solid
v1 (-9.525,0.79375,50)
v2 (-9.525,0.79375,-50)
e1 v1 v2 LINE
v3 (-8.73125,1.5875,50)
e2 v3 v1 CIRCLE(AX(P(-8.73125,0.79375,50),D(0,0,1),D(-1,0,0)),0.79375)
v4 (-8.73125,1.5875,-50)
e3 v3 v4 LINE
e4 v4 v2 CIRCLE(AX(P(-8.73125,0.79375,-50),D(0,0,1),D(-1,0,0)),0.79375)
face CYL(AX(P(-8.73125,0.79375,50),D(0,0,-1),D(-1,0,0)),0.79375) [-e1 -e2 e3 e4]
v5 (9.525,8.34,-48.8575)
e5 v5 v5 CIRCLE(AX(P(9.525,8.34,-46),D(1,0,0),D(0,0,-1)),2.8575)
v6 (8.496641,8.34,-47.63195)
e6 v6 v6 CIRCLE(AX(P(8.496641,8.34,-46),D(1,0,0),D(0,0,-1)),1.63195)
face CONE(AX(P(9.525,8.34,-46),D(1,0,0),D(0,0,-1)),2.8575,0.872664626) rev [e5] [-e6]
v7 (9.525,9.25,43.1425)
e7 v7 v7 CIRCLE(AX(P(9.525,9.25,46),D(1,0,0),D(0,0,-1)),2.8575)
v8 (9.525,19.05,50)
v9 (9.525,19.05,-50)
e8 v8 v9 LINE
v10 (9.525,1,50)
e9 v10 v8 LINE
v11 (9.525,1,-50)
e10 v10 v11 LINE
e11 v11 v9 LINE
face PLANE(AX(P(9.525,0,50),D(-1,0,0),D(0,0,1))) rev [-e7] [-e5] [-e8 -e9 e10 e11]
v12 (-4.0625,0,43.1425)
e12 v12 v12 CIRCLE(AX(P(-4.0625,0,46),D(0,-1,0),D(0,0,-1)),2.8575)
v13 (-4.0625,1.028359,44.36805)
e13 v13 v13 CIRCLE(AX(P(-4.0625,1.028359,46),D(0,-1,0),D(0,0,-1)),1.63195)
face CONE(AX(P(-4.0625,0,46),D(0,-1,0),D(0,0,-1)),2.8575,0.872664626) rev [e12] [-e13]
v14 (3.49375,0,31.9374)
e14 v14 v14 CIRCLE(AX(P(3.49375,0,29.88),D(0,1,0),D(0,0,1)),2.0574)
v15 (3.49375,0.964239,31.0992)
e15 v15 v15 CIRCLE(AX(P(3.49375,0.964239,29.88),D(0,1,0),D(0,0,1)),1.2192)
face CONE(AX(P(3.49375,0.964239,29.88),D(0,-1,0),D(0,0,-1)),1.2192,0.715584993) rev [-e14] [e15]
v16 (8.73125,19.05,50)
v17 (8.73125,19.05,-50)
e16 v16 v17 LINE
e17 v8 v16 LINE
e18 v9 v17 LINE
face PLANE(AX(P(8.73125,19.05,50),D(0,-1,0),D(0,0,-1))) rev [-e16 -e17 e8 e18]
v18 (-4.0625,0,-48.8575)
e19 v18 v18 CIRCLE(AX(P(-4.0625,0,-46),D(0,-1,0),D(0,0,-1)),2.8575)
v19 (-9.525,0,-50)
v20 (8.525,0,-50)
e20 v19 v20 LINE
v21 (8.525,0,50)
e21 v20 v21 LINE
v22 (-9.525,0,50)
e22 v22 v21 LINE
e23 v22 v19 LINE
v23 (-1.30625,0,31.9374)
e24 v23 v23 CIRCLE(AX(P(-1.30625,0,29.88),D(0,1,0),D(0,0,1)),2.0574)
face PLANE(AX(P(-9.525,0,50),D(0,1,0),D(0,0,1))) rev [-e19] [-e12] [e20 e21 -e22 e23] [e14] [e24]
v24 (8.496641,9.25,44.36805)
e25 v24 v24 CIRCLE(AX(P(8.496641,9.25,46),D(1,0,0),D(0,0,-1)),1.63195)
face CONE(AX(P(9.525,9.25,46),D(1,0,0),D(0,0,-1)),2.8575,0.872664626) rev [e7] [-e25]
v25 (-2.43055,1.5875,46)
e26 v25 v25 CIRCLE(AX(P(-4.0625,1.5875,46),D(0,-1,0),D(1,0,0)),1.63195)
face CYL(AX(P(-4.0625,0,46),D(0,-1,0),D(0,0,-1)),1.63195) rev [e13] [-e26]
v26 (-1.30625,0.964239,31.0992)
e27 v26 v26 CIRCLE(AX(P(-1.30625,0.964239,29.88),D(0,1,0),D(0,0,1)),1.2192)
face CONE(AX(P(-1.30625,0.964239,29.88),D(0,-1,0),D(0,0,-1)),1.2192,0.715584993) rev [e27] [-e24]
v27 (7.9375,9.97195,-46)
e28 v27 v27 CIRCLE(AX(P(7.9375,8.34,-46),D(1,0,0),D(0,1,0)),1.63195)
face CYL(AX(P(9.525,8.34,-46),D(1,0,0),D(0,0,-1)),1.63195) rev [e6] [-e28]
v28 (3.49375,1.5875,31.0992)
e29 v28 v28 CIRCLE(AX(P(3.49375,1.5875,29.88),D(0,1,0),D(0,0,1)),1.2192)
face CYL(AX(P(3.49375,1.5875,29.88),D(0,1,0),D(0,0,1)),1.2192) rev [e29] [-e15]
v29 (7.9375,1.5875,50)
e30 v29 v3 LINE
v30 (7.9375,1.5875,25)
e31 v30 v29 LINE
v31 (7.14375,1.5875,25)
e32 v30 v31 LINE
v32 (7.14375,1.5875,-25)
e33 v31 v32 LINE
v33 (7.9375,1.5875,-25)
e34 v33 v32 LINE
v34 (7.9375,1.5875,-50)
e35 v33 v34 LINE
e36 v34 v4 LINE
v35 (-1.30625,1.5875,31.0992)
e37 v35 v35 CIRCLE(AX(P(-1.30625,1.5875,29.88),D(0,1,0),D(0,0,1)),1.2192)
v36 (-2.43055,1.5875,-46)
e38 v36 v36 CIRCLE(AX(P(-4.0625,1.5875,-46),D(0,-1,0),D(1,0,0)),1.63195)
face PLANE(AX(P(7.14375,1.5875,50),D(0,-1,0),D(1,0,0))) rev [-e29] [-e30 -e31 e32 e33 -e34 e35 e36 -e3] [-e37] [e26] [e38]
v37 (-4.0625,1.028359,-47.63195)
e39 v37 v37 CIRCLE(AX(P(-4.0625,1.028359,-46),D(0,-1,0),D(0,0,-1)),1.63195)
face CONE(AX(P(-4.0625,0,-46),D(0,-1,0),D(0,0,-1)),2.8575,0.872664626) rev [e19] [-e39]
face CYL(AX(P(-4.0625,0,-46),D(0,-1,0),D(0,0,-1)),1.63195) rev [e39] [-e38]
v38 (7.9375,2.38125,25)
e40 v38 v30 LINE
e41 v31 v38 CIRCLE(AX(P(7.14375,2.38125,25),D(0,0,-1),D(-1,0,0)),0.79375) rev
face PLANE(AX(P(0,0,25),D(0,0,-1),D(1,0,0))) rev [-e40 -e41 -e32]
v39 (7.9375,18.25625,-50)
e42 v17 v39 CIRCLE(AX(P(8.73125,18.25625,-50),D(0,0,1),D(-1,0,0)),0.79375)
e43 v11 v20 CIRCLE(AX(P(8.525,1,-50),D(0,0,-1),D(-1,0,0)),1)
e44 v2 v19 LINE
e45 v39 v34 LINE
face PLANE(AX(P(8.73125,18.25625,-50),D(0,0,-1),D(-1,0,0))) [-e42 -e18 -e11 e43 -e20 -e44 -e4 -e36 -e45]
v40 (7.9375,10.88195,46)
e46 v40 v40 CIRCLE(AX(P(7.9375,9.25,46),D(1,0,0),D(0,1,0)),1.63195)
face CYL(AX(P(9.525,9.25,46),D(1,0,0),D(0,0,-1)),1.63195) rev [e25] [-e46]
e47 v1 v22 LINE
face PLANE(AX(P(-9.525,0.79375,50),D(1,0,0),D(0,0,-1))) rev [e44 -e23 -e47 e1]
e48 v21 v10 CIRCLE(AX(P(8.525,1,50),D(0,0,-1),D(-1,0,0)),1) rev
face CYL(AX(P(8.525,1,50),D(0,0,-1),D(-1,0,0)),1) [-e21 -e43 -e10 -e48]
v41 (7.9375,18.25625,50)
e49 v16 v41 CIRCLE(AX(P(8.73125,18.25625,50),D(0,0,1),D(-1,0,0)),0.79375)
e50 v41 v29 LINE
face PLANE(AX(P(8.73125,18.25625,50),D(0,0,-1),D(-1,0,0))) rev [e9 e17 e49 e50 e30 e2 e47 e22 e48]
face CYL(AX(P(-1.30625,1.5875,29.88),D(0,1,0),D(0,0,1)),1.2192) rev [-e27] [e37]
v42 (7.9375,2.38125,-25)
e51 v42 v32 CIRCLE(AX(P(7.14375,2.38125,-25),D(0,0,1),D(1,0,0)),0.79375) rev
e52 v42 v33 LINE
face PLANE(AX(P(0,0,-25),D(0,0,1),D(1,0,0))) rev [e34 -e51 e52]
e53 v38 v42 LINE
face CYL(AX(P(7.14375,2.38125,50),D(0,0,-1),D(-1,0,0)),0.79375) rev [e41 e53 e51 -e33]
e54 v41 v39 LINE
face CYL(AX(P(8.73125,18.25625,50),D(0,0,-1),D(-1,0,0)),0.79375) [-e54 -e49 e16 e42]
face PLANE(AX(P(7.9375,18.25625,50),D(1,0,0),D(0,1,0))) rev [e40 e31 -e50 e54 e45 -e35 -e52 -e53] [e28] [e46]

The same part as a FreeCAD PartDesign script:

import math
import FreeCAD as App
import Part
import Sketcher
from FreeCAD import Vector
Q = App.Units.Quantity


def edges_at(feature, points):
    """Names of the edges that pass closest to the given points."""
    edges = feature.Shape.Edges
    near = lambda p: min(range(len(edges)), key=lambda i: edges[i].distToShape(Part.Vertex(*p))[0])
    return sorted({f"Edge{near(p) + 1}" for p in points})

doc = App.newDocument("Part")
body = doc.addObject("PartDesign::Body", "Body")

# Sketch on XY plane
sketch1 = body.newObject("Sketcher::SketchObject", "Sketch")
sketch1.AttachmentSupport = (doc.getObject("XY_Plane"), [""])
sketch1.MapMode = "FlatFace"
sketch1.addGeometry([
    Part.LineSegment(Vector(-9.5, 0, 0), Vector(9.5, 0, 0)),  # 0
    Part.LineSegment(Vector(9.5, 0, 0), Vector(9.5, 19.1, 0)),  # 1
    Part.LineSegment(Vector(9.5, 19.1, 0), Vector(8.7, 19.1, 0)),  # 2
    Part.ArcOfCircle(Part.Circle(Vector(8.7, 18.3, 0), Vector(0, 0, 1), 0.8), math.radians(90), math.radians(180)),  # 3
    Part.LineSegment(Vector(7.9, 18.3, 0), Vector(7.9, 2.4, 0)),  # 4
    Part.ArcOfCircle(Part.Circle(Vector(7.1, 2.4, 0), Vector(0, 0, 1), 0.8), math.radians(-90), math.radians(0)),  # 5
    Part.LineSegment(Vector(7.1, 1.6, 0), Vector(-8.7, 1.6, 0)),  # 6
    Part.ArcOfCircle(Part.Circle(Vector(-8.7, 0.8, 0), Vector(0, 0, 1), 0.8), math.radians(90), math.radians(180)),  # 7
    Part.LineSegment(Vector(-9.5, 0.8, 0), Vector(-9.5, 0, 0)),  # 8
], False)
sketch1.addConstraint([
    Sketcher.Constraint("Coincident", 0, 2, 1, 1),
    Sketcher.Constraint("Coincident", 1, 2, 2, 1),
    Sketcher.Constraint("Tangent", 2, 2, 3, 1),
    Sketcher.Constraint("Tangent", 3, 2, 4, 1),
    Sketcher.Constraint("Tangent", 4, 2, 5, 2),
    Sketcher.Constraint("Tangent", 5, 1, 6, 1),
    Sketcher.Constraint("Tangent", 6, 2, 7, 1),
    Sketcher.Constraint("Tangent", 7, 2, 8, 1),
    Sketcher.Constraint("Coincident", 8, 2, 0, 1),
    Sketcher.Constraint("Horizontal", 0),
    Sketcher.Constraint("Vertical", 1),
    Sketcher.Constraint("Horizontal", 2),
    Sketcher.Constraint("Vertical", 4),
    Sketcher.Constraint("Horizontal", 6),
    Sketcher.Constraint("Vertical", 8),
    Sketcher.Constraint("Equal", 3, 5),
    Sketcher.Constraint("Equal", 5, 7),
    Sketcher.Constraint("Symmetric", 0, 2, 8, 2, -1, 1),
    Sketcher.Constraint("Equal", 0, 1),
    Sketcher.Constraint("Equal", 6, 4),
    Sketcher.Constraint("Radius", 3, Q("0.03125 in")),
    Sketcher.Constraint("DistanceX", 0, 1, 0, 2, Q("0.75 in")),
    Sketcher.Constraint("DistanceX", 2, 2, 2, 1, Q("0.03125 in")),
])
pad1 = body.newObject("PartDesign::Pad", "Pad")
pad1.Profile = sketch1
pad1.Length = 100
pad1.Midplane = True

# Sketch on XZ plane
sketch2 = body.newObject("Sketcher::SketchObject", "Sketch001")
sketch2.AttachmentSupport = (doc.getObject("XZ_Plane"), [""])
sketch2.MapMode = "FlatFace"
sketch2.addGeometry([
    Part.Circle(Vector(-4.1, 46, 0), Vector(0, 0, 1), 1.6),
    Part.Circle(Vector(-4.1, -46, 0), Vector(0, 0, 1), 1.6),
], False)
sketch2.addConstraint([
    Sketcher.Constraint("Equal", 0, 1),
    Sketcher.Constraint("Symmetric", 0, 3, 1, 3, -1),
    Sketcher.Constraint("Diameter", 0, Q("0.1285 in")),
    Sketcher.Constraint("DistanceX", 0, 3, -1, 1, 4.0625),
    Sketcher.Constraint("DistanceY", -1, 1, 0, 3, 46.0),
])
doc.recompute()
hole = body.newObject("PartDesign::Hole", "Hole")
hole.Profile = sketch2
hole.ThreadType = "None"
hole.Diameter = Q("0.1285 in")
hole.DepthType = "ThroughAll"
hole.HoleCutType = "Countersink"
hole.HoleCutDiameter = Q("0.225 in")
hole.HoleCutCountersinkAngle = 100

# Sketch on YZ plane
sketch3 = body.newObject("Sketcher::SketchObject", "Sketch002")
sketch3.AttachmentSupport = (doc.getObject("YZ_Plane"), [""])
sketch3.MapMode = "FlatFace"
sketch3.AttachmentOffset = App.Placement(Vector(0, 0, 0.375 * 25.4), App.Rotation())
sketch3.addGeometry([
    Part.Circle(Vector(9.2, 46, 0), Vector(0, 0, 1), 1.6),
    Part.Circle(Vector(8.3, -46, 0), Vector(0, 0, 1), 1.6),
], False)
sketch3.addConstraint([
    Sketcher.Constraint("Equal", 0, 1),
    Sketcher.Constraint("Diameter", 0, Q("0.1285 in")),
    Sketcher.Constraint("DistanceX", -1, 1, 0, 3, 9.25),
    Sketcher.Constraint("DistanceY", -1, 1, 0, 3, 46.0),
    Sketcher.Constraint("DistanceX", -1, 1, 1, 3, 8.34),
    Sketcher.Constraint("DistanceY", 1, 3, -1, 1, 46.0),
])
doc.recompute()
hole2 = body.newObject("PartDesign::Hole", "Hole001")
hole2.Profile = sketch3
hole2.ThreadType = "None"
hole2.Diameter = Q("0.1285 in")
hole2.DepthType = "ThroughAll"
hole2.HoleCutType = "Countersink"
hole2.HoleCutDiameter = Q("0.225 in")
hole2.HoleCutCountersinkAngle = 100
doc.recompute()

fillet = body.newObject("PartDesign::Fillet", "Fillet")
fillet.Base = (hole2, edges_at(hole2, [(9.525, 0, 0)]))
fillet.Radius = 1

# Sketch on YZ plane
sketch4 = body.newObject("Sketcher::SketchObject", "Sketch003")
sketch4.AttachmentSupport = (doc.getObject("YZ_Plane"), [""])
sketch4.MapMode = "FlatFace"
sketch4.AttachmentOffset = App.Placement(Vector(0, 0, 3.49375), App.Rotation())
sketch4.addGeometry([
    Part.LineSegment(Vector(0, 29.9, 0), Vector(1.6, 29.9, 0)),  # 0
    Part.LineSegment(Vector(1.6, 29.9, 0), Vector(1.6, 31.1, 0)),  # 1
    Part.LineSegment(Vector(1.6, 31.1, 0), Vector(1, 31.1, 0)),  # 2
    Part.LineSegment(Vector(1, 31.1, 0), Vector(0, 31.9, 0)),  # 3
    Part.LineSegment(Vector(0, 31.9, 0), Vector(0, 29.9, 0)),  # 4
], False)
sketch4.addGeometry(Part.LineSegment(Vector(1.6, 29.9, 0), Vector(0, 29.9, 0)), True)  # axis
sketch4.addConstraint([
    Sketcher.Constraint("Coincident", 0, 2, 1, 1),
    Sketcher.Constraint("Coincident", 1, 2, 2, 1),
    Sketcher.Constraint("Coincident", 2, 2, 3, 1),
    Sketcher.Constraint("Coincident", 3, 2, 4, 1),
    Sketcher.Constraint("Coincident", 4, 2, 0, 1),
    Sketcher.Constraint("Horizontal", 0),
    Sketcher.Constraint("Vertical", 1),
    Sketcher.Constraint("Horizontal", 2),
    Sketcher.Constraint("Vertical", 4),
    Sketcher.Constraint("Horizontal", 5),
    Sketcher.Constraint("Coincident", 5, 1, 0, 2),
    Sketcher.Constraint("PointOnObject", 3, 2, -2),
    Sketcher.Constraint("PointOnObject", 5, 2, -2),
    Sketcher.Constraint("Angle", 3, Q("139 deg")),
    Sketcher.Constraint("DistanceX", 0, 1, 0, 2, Q("0.0625 in")),
    Sketcher.Constraint("DistanceY", 1, 1, 1, 2, Q("0.048 in")),
    Sketcher.Constraint("DistanceY", 4, 2, 4, 1, Q("0.081 in")),
    Sketcher.Constraint("DistanceY", -1, 1, 0, 2, 29.88),
])
groove = body.newObject("PartDesign::Groove", "Groove")
groove.Profile = sketch4
groove.ReferenceAxis = (sketch4, ["Axis0"])
groove.Angle = 360
doc.recompute()

linearpattern = body.newObject("PartDesign::LinearPattern", "LinearPattern")
linearpattern.Originals = [groove]
linearpattern.Direction = (doc.getObject("X_Axis"), [""])
linearpattern.Mode = "offset"
linearpattern.Offset = 4.8
linearpattern.Occurrences = 2
linearpattern.Reversed = True
body.Tip = linearpattern

# Sketch on XY plane
sketch5 = body.newObject("Sketcher::SketchObject", "Sketch004")
sketch5.AttachmentSupport = (doc.getObject("XY_Plane"), [""])
sketch5.MapMode = "FlatFace"
sketch5.AttachmentOffset = App.Placement(Vector(0, 0, -50), App.Rotation())
sketch5.addGeometry([
    Part.LineSegment(Vector(8, 7, 0), Vector(8, 2, 0)),
    Part.LineSegment(Vector(8, 2, 0), Vector(3, 2, 0)),
    Part.LineSegment(Vector(3, 2, 0), Vector(8, 7, 0)),
], False)
sketch5.addConstraint([
    Sketcher.Constraint("Coincident", 0, 2, 1, 1),
    Sketcher.Constraint("Coincident", 1, 2, 2, 1),
    Sketcher.Constraint("Coincident", 2, 2, 0, 1),
    Sketcher.Constraint("Vertical", 0),
    Sketcher.Constraint("Horizontal", 1),
    Sketcher.Constraint("Equal", 1, 0),
    Sketcher.Constraint("DistanceX", -1, 1, 0, 2, Q("0.3125 in")),
    Sketcher.Constraint("DistanceY", -1, 1, 0, 2, Q("0.0625 in")),
    Sketcher.Constraint("DistanceX", 1, 2, 1, 1, 5.0),
])
pocket1 = body.newObject("PartDesign::Pocket", "Pocket")
pocket1.Profile = sketch5
pocket1.Length = 25
pocket1.Reversed = True
doc.recompute()

mirrored = body.newObject("PartDesign::Mirrored", "Mirrored")
mirrored.Originals = [pocket1]
mirrored.MirrorPlane = (doc.getObject("XY_Plane"), [""])
body.Tip = mirrored

doc.recompute()
